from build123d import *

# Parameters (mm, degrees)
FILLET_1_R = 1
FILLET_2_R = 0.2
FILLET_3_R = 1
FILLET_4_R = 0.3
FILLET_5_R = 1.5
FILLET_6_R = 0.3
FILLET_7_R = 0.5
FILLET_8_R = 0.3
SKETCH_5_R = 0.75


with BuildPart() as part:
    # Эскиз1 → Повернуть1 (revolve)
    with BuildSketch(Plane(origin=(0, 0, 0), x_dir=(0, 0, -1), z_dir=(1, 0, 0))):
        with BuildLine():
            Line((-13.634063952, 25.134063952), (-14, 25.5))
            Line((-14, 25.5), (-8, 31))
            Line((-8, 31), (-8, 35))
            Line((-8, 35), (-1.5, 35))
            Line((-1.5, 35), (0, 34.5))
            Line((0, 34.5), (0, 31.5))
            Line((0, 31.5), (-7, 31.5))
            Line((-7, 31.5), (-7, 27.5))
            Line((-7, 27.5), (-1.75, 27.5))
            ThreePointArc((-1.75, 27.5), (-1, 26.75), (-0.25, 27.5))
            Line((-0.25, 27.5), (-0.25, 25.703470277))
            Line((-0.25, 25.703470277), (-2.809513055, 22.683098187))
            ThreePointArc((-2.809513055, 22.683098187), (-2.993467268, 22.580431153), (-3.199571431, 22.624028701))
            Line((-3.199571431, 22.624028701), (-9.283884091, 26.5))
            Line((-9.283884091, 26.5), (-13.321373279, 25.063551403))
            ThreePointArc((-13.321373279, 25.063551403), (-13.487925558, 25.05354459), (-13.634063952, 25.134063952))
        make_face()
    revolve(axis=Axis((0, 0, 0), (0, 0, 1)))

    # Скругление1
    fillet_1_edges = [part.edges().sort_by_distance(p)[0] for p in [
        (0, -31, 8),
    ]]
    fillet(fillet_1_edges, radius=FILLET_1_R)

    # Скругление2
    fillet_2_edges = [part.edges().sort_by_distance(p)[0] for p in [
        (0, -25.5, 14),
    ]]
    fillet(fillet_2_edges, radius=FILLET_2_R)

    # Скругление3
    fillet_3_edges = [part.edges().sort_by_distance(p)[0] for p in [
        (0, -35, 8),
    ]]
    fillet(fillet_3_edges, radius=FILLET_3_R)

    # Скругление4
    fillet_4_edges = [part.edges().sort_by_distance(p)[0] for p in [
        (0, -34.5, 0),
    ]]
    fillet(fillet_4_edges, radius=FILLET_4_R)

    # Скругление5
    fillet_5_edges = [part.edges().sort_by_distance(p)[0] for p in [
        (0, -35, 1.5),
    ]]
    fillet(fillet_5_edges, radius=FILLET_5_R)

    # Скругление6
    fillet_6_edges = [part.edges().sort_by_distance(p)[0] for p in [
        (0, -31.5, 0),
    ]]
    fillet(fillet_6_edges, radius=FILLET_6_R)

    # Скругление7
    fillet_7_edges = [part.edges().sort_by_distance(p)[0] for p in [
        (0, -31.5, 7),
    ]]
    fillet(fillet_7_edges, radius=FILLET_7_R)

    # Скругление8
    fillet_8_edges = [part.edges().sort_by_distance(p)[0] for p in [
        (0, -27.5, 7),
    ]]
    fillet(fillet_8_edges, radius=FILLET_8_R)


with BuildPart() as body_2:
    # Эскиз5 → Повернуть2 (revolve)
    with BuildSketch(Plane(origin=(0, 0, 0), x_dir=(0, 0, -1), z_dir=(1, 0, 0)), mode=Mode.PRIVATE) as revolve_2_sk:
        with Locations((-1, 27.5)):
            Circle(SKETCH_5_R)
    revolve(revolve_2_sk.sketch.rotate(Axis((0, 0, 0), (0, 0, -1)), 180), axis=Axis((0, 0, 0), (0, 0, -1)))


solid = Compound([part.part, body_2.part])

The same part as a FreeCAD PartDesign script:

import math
import FreeCAD as App
import Part
import Sketcher

V = App.Vector
Q = App.Units.Quantity


def edges_at(feature, points):
    """Names of the edges that pass closest to the given points."""
    edges = feature.Shape.Edges
    near = lambda p: min(range(len(edges)), key=lambda i: edges[i].distToShape(Part.Vertex(*p))[0])
    return sorted({f"Edge{near(p) + 1}" for p in points})

doc = App.newDocument("Part")
body = doc.addObject("PartDesign::Body", "Body")

# Sketch on YZ plane
sketch1 = body.newObject("Sketcher::SketchObject", "Sketch")
sketch1.AttachmentSupport = (doc.getObject("YZ_Plane"), [""])
sketch1.MapMode = "FlatFace"
sketch1.addGeometry([
    Part.LineSegment(V(25.5, 14, 0), V(25.134064, 13.634064, 0)),  # 0
    Part.ArcOfCircle(Part.Circle(V(25.346196, 13.421932, 0), V(0, 0, 1), 0.3), math.radians(135), math.radians(199.584425)),  # 1
    Part.LineSegment(V(25.063551, 13.321373, 0), V(26.5, 9.283884, 0)),  # 2
    Part.LineSegment(V(26.5, 9.283884, 0), V(22.624029, 3.199571, 0)),  # 3
    Part.ArcOfCircle(Part.Circle(V(22.877049, 3.038386, 0), V(0, 0, 1), 0.3), math.radians(147.501094), math.radians(229.72151)),  # 4
    Part.LineSegment(V(22.683098, 2.809513, 0), V(25.70347, 0.25, 0)),  # 5
    Part.LineSegment(V(25.70347, 0.25, 0), V(27.5, 0.25, 0)),  # 6
    Part.ArcOfCircle(Part.Circle(V(27.5, 1, 0), V(0, 0, 1), 0.75), math.radians(90), math.radians(270)),  # 7
    Part.LineSegment(V(27.5, 1.75, 0), V(27.5, 7, 0)),  # 8
    Part.LineSegment(V(27.5, 7, 0), V(31.5, 7, 0)),  # 9
    Part.LineSegment(V(31.5, 7, 0), V(31.5, 0, 0)),  # 10
    Part.LineSegment(V(31.5, 0, 0), V(34.5, 0, 0)),  # 11
    Part.LineSegment(V(34.5, 0, 0), V(35, 1.5, 0)),  # 12
    Part.LineSegment(V(35, 1.5, 0), V(35, 8, 0)),  # 13
    Part.LineSegment(V(35, 8, 0), V(31, 8, 0)),  # 14
    Part.LineSegment(V(31, 8, 0), V(25.5, 14, 0)),  # 15
], False)
sketch1.addConstraint([
    Sketcher.Constraint("Coincident", 0, 2, 1, 1),
    Sketcher.Constraint("Coincident", 1, 2, 2, 1),
    Sketcher.Constraint("Coincident", 2, 2, 3, 1),
    Sketcher.Constraint("Coincident", 3, 2, 4, 1),
    Sketcher.Constraint("Coincident", 4, 2, 5, 1),
    Sketcher.Constraint("Coincident", 5, 2, 6, 1),
    Sketcher.Constraint("Coincident", 6, 2, 7, 2),
    Sketcher.Constraint("Coincident", 7, 1, 8, 1),
    Sketcher.Constraint("Coincident", 8, 2, 9, 1),
    Sketcher.Constraint("Coincident", 9, 2, 10, 1),
    Sketcher.Constraint("Coincident", 10, 2, 11, 1),
    Sketcher.Constraint("Coincident", 11, 2, 12, 1),
    Sketcher.Constraint("Coincident", 12, 2, 13, 1),
    Sketcher.Constraint("Coincident", 13, 2, 14, 1),
    Sketcher.Constraint("Coincident", 14, 2, 15, 1),
    Sketcher.Constraint("Coincident", 15, 2, 0, 1),
    Sketcher.Constraint("Horizontal", 6),
    Sketcher.Constraint("Vertical", 8),
    Sketcher.Constraint("Horizontal", 9),
    Sketcher.Constraint("Vertical", 10),
    Sketcher.Constraint("Horizontal", 11),
    Sketcher.Constraint("Vertical", 13),
    Sketcher.Constraint("Horizontal", 14),
    Sketcher.Constraint("PointOnObject", 10, 2, -1),
    Sketcher.Constraint("Radius", 1, Q("0.3 mm")),
    Sketcher.Constraint("Radius", 4, Q("0.3 mm")),
    Sketcher.Constraint("DistanceX", 9, 1, 9, 2, Q("4 mm")),
    Sketcher.Constraint("DistanceX", 11, 1, 11, 2, Q("3 mm")),
    Sketcher.Constraint("DistanceX", 14, 2, 14, 1, Q("4 mm")),
    Sketcher.Constraint("DistanceY", 10, 2, 10, 1, Q("7 mm")),
    Sketcher.Constraint("Radius", 7, Q("0.75 mm")),
    Sketcher.Constraint("DistanceY", 13, 1, 13, 2, Q("6.5 mm")),
    Sketcher.Constraint("DistanceY", -1, 1, 7, 3, Q("1 mm")),
    Sketcher.Constraint("DistanceX", -1, 1, 12, 2, Q("35 mm")),
    Sketcher.Constraint("DistanceY", -1, 1, 13, 2, Q("8 mm")),
    Sketcher.Constraint("DistanceY", -1, 1, 15, 2, Q("14 mm")),
    Sketcher.Constraint("DistanceX", 2, 2, 7, 3, Q("1 mm")),
    Sketcher.Constraint("DistanceX", 2, 2, 8, 2, Q("1 mm")),
    Sketcher.Constraint("DistanceX", 6, 2, 9, 2, Q("4 mm")),
    Sketcher.Constraint("DistanceX", 15, 2, 2, 2, Q("1 mm")),
    Sketcher.Constraint("DistanceX", -1, 1, 7, 3, Q("27.5 mm")),
    Sketcher.Constraint("DistanceX", 6, 1, 6, 2, Q("1.79653 mm")),
    Sketcher.Constraint("DistanceX", -1, 1, 4, 2, Q("22.683098 mm")),
    Sketcher.Constraint("DistanceY", 3, 2, 1, 2, Q("10.121802 mm")),
    Sketcher.Constraint("Distance", 0, Q("0.517512 mm")),
    Sketcher.Constraint("Distance", 5, Q("3.959009 mm")),
    Sketcher.Constraint("DistanceY", -1, 1, 1, 3, Q("13.421932 mm")),
    Sketcher.Constraint("DistanceX", -1, 1, 4, 3, Q("22.877049 mm")),
    Sketcher.Constraint("DistanceX", -1, 1, 1, 2, Q("25.063551 mm")),
    Sketcher.Constraint("DistanceX", -1, 1, 3, 2, Q("22.624029 mm")),
    Sketcher.Constraint("DistanceY", 2, 2, 1, 2, Q("4.037489 mm")),
])
revolution = body.newObject("PartDesign::Revolution", "Revolution")
revolution.Profile = sketch1
revolution.ReferenceAxis = (sketch1, ["V_Axis"])
revolution.Angle = 360
doc.recompute()

fillet = body.newObject("PartDesign::Fillet", "Fillet")
fillet.Base = (revolution, edges_at(revolution, [(0, -31, 8)]))
fillet.Radius = 1
doc.recompute()

fillet2 = body.newObject("PartDesign::Fillet", "Fillet001")
fillet2.Base = (fillet, edges_at(fillet, [(0, -25.5, 14)]))
fillet2.Radius = 0.2
doc.recompute()

fillet3 = body.newObject("PartDesign::Fillet", "Fillet002")
fillet3.Base = (fillet2, edges_at(fillet2, [(0, -35, 8)]))
fillet3.Radius = 1
doc.recompute()

fillet4 = body.newObject("PartDesign::Fillet", "Fillet003")
fillet4.Base = (fillet3, edges_at(fillet3, [(0, -34.5, 0)]))
fillet4.Radius = 0.3
doc.recompute()

fillet5 = body.newObject("PartDesign::Fillet", "Fillet004")
fillet5.Base = (fillet4, edges_at(fillet4, [(0, -35, 1.5)]))
fillet5.Radius = 1.5
doc.recompute()

fillet6 = body.newObject("PartDesign::Fillet", "Fillet005")
fillet6.Base = (fillet5, edges_at(fillet5, [(0, -31.5, 0)]))
fillet6.Radius = 0.3
doc.recompute()

fillet7 = body.newObject("PartDesign::Fillet", "Fillet006")
fillet7.Base = (fillet6, edges_at(fillet6, [(0, -31.5, 7)]))
fillet7.Radius = 0.5
doc.recompute()

fillet8 = body.newObject("PartDesign::Fillet", "Fillet007")
fillet8.Base = (fillet7, edges_at(fillet7, [(0, -27.5, 7)]))
fillet8.Radius = 0.3
body2 = doc.addObject("PartDesign::Body", "Body001")

# Sketch on YZ plane
sketch2 = body2.newObject("Sketcher::SketchObject", "Sketch001")
sketch2.AttachmentSupport = (doc.getObject("YZ_Plane001"), [""])
sketch2.MapMode = "FlatFace"
sketch2.addGeometry(Part.Circle(V(27.5, 1, 0), V(0, 0, 1), 0.8), False)
sketch2.addConstraint([
    Sketcher.Constraint("Diameter", 0, Q("1.5 mm")),
    Sketcher.Constraint("DistanceY", -1, 1, 0, 3, Q("1 mm")),
    Sketcher.Constraint("DistanceX", -1, 1, 0, 3, Q("27.5 mm")),
])
revolution2 = body2.newObject("PartDesign::Revolution", "Revolution001")
revolution2.Profile = sketch2
revolution2.ReferenceAxis = (sketch2, ["V_Axis"])
revolution2.Angle = 360

doc.recompute()
